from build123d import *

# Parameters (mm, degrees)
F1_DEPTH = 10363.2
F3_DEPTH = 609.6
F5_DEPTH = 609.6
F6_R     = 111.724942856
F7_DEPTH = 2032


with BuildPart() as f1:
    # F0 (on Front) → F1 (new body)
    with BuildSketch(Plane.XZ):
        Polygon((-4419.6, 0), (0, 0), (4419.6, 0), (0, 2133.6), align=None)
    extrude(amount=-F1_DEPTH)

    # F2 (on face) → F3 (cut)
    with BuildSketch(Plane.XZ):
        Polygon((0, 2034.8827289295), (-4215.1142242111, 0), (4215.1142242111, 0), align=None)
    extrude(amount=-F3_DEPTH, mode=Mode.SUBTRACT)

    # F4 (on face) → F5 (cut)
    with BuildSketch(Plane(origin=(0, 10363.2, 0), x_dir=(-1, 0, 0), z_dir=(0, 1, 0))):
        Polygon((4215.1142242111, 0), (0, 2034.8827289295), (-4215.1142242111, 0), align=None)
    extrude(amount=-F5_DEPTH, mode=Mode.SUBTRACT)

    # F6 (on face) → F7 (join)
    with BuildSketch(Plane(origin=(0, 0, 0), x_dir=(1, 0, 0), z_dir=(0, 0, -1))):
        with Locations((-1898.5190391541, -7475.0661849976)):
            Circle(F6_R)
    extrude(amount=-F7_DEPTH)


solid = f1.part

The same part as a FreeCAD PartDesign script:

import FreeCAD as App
import Part
import Sketcher
from FreeCAD import Vector
Q = App.Units.Quantity


def add_polygon(sketch, points):
    """Adds a closed chain of lines whose ends are joined by coincident constraints."""
    first, n = sketch.GeometryCount, len(points)
    for a, b in zip(points, points[1:] + points[:1]):
        sketch.addGeometry(Part.LineSegment(App.Vector(*a, 0), App.Vector(*b, 0)), False)
    for i in range(n):
        sketch.addConstraint(Sketcher.Constraint("Coincident", first + i, 2, first + (i + 1) % n, 1))

doc = App.newDocument("Part")
params = doc.addObject("Spreadsheet::Sheet", "Params")
for row, (alias, value) in enumerate([
    ("sketch1_width", "348 in"),
    ("pad1_length", "408 in"),
    ("pocket1_length", "24 in"),
    ("pocket2_length", "24 in"),
    ("pad2_length", "80 in"),
], start=1):
    params.set(f"A{row}", alias)
    params.set(f"B{row}", "=" + value)
    params.setAlias(f"B{row}", alias)

body = doc.addObject("PartDesign::Body", "Body")

sketch1 = body.newObject("Sketcher::SketchObject", "Sketch")
sketch1.AttachmentSupport = (doc.getObject("XZ_Plane"), [""])
sketch1.MapMode = "FlatFace"
add_polygon(sketch1, [(-4420, 0), (4420, 0), (0, 2134)])
sketch1.addConstraint([
    Sketcher.Constraint("Horizontal", 0),
    Sketcher.Constraint("Symmetric", 0, 2, 2, 2, -1, 1),
    Sketcher.Constraint("PointOnObject", 1, 2, -2),
    Sketcher.Constraint("DistanceX", 0, 1, 0, 2, Q("348 in")),
    Sketcher.Constraint("DistanceY", -1, 1, 1, 2, Q("84 in")),
])
sketch1.setExpression("Constraints[6]", "Params.sketch1_width")
pad1 = body.newObject("PartDesign::Pad", "Pad")
pad1.Profile = sketch1
pad1.setExpression("Length", "Params.pad1_length")
pad1.Reversed = True

sketch2 = body.newObject("Sketcher::SketchObject", "Sketch001")
sketch2.AttachmentSupport = (doc.getObject("XZ_Plane"), [""])
sketch2.MapMode = "FlatFace"
add_polygon(sketch2, [(0, 2035), (-4215, 0), (4215, 0)])
sketch2.addConstraint([
    Sketcher.Constraint("Horizontal", 1),
    Sketcher.Constraint("Symmetric", 0, 2, 1, 2, -1, 1),
    Sketcher.Constraint("PointOnObject", 2, 2, -2),
    Sketcher.Constraint("DistanceX", 1, 1, 1, 2, 8430.228448),
    Sketcher.Constraint("DistanceY", -1, 1, 2, 2, 2034.882729),
])
pocket1 = body.newObject("PartDesign::Pocket", "Pocket")
pocket1.Profile = sketch2
pocket1.setExpression("Length", "Params.pocket1_length")

sketch3 = body.newObject("Sketcher::SketchObject", "Sketch002")
sketch3.AttachmentSupport = (doc.getObject("XZ_Plane"), [""])
sketch3.MapMode = "FlatFace"
sketch3.AttachmentOffset = App.Placement(Vector(0, 0, -408 * 25.4), App.Rotation())
add_polygon(sketch3, [(-4215, 0), (0, 2035), (4215, 0)])
sketch3.addConstraint([
    Sketcher.Constraint("Horizontal", 2),
    Sketcher.Constraint("Symmetric", 1, 2, 2, 2, -1, 1),
    Sketcher.Constraint("PointOnObject", 0, 2, -2),
    Sketcher.Constraint("DistanceX", 2, 2, 2, 1, 8430.228448),
    Sketcher.Constraint("DistanceY", -1, 1, 0, 2, 2034.882729),
])
pocket2 = body.newObject("PartDesign::Pocket", "Pocket001")
pocket2.Profile = sketch3
pocket2.setExpression("Length", "Params.pocket2_length")
pocket2.Reversed = True

sketch4 = body.newObject("Sketcher::SketchObject", "Sketch003")
sketch4.AttachmentSupport = (doc.getObject("XY_Plane"), [""])
sketch4.MapMode = "FlatFace"
sketch4.addGeometry(Part.Circle(Vector(-1899, 7475, 0), Vector(0, 0, 1), 112), False)
sketch4.addConstraint([
    Sketcher.Constraint("Diameter", 0, 223.449886),
    Sketcher.Constraint("DistanceX", 0, 3, -1, 1, 1898.519039),
    Sketcher.Constraint("DistanceY", -1, 1, 0, 3, 7475.066185),
])
pad2 = body.newObject("PartDesign::Pad", "Pad001")
pad2.Profile = sketch4
pad2.setExpression("Length", "Params.pad2_length")

doc.recompute()
